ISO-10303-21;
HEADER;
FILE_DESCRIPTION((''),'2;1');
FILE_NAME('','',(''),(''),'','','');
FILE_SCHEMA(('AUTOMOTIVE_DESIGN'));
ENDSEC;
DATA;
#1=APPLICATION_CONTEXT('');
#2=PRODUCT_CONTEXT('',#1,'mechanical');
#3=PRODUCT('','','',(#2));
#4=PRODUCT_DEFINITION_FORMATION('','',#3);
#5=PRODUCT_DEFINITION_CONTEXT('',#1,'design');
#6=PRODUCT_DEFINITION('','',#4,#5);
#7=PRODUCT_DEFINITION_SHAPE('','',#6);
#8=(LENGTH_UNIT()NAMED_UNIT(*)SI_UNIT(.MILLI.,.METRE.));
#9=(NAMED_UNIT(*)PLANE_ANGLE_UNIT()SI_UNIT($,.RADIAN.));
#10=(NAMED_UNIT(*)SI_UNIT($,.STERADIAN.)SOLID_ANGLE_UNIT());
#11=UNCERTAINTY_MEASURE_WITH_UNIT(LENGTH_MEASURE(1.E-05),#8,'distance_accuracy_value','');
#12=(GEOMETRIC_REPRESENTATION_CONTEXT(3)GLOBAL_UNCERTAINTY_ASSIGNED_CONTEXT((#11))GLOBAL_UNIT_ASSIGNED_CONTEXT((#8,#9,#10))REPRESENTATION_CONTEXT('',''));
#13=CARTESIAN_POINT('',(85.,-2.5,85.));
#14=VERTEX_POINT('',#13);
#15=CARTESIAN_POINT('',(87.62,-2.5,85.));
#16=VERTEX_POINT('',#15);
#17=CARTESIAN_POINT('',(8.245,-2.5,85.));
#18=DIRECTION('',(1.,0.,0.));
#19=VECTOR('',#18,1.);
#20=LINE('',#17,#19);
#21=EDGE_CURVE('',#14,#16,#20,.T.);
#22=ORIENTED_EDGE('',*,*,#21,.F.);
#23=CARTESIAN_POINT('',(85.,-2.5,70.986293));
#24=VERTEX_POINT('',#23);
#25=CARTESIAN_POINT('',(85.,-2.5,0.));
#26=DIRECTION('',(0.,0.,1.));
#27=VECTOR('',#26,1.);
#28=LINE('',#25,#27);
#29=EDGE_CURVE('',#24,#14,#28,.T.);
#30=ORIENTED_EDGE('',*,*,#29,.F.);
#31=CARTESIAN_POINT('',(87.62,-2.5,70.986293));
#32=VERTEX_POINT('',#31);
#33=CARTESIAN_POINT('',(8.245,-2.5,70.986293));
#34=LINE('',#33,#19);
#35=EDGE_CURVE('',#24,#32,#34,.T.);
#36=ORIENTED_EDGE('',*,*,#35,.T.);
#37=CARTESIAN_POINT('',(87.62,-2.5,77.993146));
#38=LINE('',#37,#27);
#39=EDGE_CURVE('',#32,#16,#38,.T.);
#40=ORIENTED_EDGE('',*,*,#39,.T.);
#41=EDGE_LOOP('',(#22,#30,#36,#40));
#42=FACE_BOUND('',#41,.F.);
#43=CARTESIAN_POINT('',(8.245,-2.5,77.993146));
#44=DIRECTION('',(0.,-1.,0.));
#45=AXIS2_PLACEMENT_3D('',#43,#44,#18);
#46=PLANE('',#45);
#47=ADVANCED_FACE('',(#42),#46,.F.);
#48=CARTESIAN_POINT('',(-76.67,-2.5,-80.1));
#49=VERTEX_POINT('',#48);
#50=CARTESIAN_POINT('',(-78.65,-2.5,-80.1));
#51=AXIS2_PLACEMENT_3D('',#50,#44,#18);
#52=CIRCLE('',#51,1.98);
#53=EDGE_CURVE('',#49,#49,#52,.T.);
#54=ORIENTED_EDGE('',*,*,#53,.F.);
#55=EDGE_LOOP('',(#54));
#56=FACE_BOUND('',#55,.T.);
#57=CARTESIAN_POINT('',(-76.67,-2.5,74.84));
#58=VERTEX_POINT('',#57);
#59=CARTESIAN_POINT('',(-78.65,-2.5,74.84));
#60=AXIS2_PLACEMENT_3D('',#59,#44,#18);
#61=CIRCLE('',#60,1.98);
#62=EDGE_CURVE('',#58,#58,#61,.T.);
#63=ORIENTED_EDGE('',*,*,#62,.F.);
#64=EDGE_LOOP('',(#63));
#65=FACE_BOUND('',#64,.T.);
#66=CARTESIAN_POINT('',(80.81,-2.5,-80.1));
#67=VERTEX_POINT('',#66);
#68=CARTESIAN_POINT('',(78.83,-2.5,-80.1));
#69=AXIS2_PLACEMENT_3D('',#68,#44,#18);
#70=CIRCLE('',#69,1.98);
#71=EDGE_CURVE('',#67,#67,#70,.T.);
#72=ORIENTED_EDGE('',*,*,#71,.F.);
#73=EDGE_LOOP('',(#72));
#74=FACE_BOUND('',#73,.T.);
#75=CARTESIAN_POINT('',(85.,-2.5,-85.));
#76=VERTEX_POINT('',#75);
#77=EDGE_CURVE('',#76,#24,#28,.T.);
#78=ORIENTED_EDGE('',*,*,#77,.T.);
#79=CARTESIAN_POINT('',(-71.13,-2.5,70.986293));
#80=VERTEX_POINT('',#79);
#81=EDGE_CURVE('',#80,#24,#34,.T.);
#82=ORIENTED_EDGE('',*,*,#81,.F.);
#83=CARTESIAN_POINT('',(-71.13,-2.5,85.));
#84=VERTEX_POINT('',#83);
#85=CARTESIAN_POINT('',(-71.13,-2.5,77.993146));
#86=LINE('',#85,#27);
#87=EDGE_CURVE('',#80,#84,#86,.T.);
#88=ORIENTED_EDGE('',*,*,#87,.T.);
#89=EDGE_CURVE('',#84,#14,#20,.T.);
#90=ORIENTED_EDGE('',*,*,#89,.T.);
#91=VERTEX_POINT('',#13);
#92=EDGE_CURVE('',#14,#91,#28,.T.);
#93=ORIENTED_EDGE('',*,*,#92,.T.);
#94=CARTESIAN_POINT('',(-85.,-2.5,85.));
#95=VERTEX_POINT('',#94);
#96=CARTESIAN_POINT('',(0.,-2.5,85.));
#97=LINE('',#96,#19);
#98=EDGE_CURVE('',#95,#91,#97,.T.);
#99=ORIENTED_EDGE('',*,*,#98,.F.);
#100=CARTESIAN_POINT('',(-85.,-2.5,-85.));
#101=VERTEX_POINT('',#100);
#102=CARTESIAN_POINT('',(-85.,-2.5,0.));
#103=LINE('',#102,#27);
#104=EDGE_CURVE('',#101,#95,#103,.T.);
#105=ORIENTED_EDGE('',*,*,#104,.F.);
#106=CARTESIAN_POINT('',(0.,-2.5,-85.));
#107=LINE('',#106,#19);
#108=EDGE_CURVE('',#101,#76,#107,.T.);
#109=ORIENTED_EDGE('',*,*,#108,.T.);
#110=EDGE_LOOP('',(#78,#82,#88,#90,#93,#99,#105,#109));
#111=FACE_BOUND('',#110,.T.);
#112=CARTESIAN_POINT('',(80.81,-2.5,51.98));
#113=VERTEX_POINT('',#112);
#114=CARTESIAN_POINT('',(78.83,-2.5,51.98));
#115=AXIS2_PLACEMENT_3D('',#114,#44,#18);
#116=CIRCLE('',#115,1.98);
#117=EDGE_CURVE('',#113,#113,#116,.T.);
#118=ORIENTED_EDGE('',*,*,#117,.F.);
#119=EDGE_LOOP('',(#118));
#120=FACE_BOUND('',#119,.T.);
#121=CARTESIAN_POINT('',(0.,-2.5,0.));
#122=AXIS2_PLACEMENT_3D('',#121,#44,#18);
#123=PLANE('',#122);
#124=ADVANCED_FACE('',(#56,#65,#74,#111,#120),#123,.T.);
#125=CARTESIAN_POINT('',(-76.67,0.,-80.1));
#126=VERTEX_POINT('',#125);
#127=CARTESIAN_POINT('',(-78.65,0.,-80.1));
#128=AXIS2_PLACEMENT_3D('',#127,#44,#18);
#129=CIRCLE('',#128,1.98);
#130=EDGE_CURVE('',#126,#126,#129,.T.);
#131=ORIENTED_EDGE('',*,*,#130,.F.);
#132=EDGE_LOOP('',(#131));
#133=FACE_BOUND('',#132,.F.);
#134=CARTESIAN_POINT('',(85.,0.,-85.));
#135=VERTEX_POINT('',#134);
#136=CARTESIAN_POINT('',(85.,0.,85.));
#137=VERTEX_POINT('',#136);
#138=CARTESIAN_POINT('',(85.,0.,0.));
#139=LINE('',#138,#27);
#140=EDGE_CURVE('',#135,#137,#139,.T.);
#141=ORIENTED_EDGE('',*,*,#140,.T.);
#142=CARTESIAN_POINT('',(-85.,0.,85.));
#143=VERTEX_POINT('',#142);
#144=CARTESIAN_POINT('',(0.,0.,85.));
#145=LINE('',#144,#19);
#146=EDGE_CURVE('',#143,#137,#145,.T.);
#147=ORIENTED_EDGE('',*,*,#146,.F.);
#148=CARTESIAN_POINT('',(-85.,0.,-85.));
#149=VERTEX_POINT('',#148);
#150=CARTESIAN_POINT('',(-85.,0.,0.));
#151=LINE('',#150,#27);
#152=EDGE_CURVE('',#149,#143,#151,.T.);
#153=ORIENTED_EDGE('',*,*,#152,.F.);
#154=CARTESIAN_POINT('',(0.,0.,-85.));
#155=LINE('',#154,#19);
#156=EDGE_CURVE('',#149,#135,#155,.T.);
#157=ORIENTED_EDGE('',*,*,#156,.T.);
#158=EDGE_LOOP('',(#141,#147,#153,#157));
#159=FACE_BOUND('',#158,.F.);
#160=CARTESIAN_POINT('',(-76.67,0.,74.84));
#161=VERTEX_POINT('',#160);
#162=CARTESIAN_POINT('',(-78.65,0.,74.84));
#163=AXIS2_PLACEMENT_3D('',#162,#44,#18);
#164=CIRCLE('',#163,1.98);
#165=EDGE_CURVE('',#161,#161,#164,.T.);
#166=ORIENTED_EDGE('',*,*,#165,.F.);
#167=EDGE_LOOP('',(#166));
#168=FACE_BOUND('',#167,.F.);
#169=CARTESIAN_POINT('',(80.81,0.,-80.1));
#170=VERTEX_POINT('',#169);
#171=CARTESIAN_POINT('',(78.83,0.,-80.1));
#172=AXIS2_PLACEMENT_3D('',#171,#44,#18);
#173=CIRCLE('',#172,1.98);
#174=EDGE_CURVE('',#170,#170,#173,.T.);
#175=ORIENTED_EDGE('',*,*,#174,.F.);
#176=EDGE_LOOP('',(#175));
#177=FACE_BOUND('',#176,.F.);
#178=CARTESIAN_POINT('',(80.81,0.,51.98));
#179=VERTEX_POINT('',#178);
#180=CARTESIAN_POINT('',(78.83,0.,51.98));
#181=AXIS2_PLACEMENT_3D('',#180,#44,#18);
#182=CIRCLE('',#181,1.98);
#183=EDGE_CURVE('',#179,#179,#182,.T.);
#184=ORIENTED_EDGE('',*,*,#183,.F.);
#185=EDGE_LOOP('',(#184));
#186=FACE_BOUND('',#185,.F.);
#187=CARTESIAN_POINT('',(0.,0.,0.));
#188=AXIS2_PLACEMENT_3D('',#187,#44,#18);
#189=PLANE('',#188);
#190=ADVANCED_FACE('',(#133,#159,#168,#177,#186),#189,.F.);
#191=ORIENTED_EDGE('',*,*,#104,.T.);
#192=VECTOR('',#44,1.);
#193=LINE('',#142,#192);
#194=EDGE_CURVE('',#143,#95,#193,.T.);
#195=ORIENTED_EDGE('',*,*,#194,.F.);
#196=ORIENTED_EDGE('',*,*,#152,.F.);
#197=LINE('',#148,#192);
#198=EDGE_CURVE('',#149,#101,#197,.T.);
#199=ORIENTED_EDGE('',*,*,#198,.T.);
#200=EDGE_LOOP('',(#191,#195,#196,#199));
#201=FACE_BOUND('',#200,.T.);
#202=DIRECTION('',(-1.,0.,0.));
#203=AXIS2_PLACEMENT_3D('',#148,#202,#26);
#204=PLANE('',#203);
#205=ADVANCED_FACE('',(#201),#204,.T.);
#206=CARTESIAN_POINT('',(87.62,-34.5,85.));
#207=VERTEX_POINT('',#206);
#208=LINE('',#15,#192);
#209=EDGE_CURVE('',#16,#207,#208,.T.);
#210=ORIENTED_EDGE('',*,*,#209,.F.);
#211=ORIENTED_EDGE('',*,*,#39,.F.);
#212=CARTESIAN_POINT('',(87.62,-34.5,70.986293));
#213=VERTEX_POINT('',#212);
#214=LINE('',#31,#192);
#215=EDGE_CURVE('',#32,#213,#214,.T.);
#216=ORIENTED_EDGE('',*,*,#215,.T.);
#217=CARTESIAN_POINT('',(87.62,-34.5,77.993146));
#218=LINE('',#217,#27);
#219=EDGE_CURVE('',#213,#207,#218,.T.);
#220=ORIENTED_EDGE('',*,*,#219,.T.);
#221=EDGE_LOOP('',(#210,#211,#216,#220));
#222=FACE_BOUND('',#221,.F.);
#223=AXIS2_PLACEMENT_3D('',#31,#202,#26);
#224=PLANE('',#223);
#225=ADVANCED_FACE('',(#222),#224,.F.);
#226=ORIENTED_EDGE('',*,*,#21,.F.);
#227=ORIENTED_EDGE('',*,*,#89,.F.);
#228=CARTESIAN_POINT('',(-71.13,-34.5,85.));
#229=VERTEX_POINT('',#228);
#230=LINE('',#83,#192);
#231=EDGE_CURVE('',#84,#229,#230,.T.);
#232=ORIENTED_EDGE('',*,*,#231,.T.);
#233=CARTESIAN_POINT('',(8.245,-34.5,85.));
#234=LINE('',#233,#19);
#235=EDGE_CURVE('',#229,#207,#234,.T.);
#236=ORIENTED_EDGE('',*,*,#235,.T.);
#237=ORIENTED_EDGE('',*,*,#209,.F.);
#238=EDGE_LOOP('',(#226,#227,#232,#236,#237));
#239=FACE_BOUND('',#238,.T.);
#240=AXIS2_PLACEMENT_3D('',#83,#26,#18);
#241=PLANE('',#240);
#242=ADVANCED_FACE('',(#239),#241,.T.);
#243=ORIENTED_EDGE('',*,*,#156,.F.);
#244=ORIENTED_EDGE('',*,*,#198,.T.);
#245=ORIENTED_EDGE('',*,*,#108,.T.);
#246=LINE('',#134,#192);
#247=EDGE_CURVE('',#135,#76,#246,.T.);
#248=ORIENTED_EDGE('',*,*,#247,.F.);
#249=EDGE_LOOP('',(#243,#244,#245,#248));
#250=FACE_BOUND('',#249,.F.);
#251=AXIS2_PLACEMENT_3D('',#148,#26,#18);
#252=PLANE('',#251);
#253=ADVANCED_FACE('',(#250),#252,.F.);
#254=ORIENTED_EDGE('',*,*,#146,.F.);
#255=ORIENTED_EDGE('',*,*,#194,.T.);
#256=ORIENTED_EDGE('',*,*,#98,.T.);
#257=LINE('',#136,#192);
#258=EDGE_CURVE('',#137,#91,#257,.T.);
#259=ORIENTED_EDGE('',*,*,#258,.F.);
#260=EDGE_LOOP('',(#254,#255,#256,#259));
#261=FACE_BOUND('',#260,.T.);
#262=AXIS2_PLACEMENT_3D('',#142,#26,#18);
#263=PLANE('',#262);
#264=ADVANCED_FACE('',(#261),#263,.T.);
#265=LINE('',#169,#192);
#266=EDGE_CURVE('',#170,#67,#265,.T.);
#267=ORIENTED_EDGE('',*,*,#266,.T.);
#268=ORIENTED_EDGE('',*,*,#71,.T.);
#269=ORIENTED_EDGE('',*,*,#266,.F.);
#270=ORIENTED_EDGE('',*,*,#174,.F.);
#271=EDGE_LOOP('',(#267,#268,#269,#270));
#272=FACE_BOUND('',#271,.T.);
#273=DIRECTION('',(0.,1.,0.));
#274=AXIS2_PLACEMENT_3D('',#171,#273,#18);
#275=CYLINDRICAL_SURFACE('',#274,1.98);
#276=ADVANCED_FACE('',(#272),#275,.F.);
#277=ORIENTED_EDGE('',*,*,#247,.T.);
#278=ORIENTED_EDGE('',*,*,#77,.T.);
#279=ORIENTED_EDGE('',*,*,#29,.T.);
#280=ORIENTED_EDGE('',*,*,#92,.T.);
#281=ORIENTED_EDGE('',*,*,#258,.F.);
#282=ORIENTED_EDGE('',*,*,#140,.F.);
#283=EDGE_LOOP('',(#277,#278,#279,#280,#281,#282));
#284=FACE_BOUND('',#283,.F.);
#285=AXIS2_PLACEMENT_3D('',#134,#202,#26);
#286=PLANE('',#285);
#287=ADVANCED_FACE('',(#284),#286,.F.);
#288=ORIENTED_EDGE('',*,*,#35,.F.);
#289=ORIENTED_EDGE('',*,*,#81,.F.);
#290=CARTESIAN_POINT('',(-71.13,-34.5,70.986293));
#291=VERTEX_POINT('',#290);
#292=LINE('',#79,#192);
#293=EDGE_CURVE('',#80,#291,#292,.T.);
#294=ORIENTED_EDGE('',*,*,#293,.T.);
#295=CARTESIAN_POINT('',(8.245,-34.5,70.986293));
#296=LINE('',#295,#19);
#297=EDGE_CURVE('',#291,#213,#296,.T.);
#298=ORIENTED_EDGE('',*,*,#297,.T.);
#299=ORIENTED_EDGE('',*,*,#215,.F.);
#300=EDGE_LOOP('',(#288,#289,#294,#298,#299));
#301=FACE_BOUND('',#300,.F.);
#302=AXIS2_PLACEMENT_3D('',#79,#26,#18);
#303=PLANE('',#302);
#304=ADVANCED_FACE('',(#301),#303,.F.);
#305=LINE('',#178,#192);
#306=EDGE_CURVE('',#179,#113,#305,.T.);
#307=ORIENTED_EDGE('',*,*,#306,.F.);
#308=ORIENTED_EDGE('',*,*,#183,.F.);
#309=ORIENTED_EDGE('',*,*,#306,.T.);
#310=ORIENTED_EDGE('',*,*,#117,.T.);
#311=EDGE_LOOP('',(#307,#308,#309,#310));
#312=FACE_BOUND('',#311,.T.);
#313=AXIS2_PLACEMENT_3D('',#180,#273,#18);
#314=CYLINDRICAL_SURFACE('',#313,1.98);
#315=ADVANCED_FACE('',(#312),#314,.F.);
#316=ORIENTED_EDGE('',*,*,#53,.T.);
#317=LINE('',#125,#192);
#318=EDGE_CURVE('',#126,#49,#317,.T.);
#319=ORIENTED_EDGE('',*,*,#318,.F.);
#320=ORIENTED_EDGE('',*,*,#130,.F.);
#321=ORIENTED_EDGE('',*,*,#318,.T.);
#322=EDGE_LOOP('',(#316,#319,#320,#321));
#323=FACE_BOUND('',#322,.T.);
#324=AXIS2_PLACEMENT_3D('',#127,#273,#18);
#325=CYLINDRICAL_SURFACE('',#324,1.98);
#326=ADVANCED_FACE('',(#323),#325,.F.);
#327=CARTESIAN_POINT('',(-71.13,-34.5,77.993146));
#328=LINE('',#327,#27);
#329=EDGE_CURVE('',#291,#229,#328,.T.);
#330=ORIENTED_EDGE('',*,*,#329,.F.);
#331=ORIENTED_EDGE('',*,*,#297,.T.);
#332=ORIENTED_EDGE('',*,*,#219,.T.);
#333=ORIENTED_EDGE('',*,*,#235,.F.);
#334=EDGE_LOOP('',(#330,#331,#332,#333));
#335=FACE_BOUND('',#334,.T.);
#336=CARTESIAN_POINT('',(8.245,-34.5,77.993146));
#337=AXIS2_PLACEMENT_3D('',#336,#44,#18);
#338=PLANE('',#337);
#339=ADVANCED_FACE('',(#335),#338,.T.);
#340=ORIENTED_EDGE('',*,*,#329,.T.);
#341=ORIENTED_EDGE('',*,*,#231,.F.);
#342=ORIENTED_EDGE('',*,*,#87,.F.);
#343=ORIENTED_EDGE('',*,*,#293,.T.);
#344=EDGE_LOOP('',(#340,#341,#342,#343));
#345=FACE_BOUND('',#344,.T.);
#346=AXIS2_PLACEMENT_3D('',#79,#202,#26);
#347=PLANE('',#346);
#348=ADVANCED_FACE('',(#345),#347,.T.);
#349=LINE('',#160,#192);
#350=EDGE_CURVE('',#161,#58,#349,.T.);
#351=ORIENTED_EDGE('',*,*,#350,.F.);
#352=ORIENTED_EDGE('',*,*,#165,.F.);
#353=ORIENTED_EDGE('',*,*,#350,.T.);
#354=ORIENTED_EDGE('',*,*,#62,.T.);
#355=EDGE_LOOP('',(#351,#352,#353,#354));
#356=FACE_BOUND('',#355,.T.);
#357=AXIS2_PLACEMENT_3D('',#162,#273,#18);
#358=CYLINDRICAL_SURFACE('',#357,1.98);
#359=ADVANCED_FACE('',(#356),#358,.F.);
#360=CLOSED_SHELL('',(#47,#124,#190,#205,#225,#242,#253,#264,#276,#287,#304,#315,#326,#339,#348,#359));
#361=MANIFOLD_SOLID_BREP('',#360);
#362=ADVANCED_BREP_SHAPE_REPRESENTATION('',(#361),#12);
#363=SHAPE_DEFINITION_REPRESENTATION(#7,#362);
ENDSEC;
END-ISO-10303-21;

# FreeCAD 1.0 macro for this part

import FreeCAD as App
import Part
import Sketcher
from FreeCAD import Vector
Q = App.Units.Quantity

doc = App.newDocument("Part")
body = doc.addObject("PartDesign::Body", "Body")

sketch1 = body.newObject("Sketcher::SketchObject", "Sketch")
sketch1.AttachmentSupport = (doc.getObject("XZ_Plane"), [""])
sketch1.MapMode = "FlatFace"
sketch1.addGeometry([
    Part.LineSegment(Vector(-85, 85, 0), Vector(-85, -85, 0)),
    Part.LineSegment(Vector(-85, -85, 0), Vector(85, -85, 0)),
    Part.LineSegment(Vector(85, -85, 0), Vector(85, 85, 0)),
    Part.LineSegment(Vector(85, 85, 0), Vector(-85, 85, 0)),
    Part.Circle(Vector(-78.7, -80.1, 0), Vector(0, 0, 1), 2),
    Part.Circle(Vector(78.8, -80.1, 0), Vector(0, 0, 1), 2),
    Part.Circle(Vector(-78.7, 74.8, 0), Vector(0, 0, 1), 2),
    Part.Circle(Vector(78.8, 52, 0), Vector(0, 0, 1), 2),
], False)
sketch1.addConstraint([
    Sketcher.Constraint("Coincident", 0, 2, 1, 1),
    Sketcher.Constraint("Coincident", 1, 2, 2, 1),
    Sketcher.Constraint("Coincident", 2, 2, 3, 1),
    Sketcher.Constraint("Coincident", 3, 2, 0, 1),
    Sketcher.Constraint("Vertical", 0),
    Sketcher.Constraint("Horizontal", 1),
    Sketcher.Constraint("Vertical", 2),
    Sketcher.Constraint("Horizontal", 3),
    Sketcher.Constraint("Equal", 4, 5),
    Sketcher.Constraint("Equal", 5, 6),
    Sketcher.Constraint("Equal", 6, 7),
    Sketcher.Constraint("Symmetric", 0, 2, 2, 2, -1, 1),
    Sketcher.Constraint("Horizontal", 4, 3, 5, 3),
    Sketcher.Constraint("Vertical", 4, 3, 6, 3),
    Sketcher.Constraint("Vertical", 5, 3, 7, 3),
    Sketcher.Constraint("Equal", 3, 0),
    Sketcher.Constraint("Diameter", 4, Q("3.96 mm")),
    Sketcher.Constraint("DistanceX", 1, 1, 1, 2, Q("170 mm")),
    Sketcher.Constraint("DistanceY", 4, 3, -1, 1, Q("80.1 mm")),
    Sketcher.Constraint("DistanceX", 4, 3, -1, 1, Q("78.65 mm")),
    Sketcher.Constraint("DistanceX", -1, 1, 5, 3, Q("78.83 mm")),
    Sketcher.Constraint("DistanceY", -1, 1, 6, 3, Q("74.84 mm")),
    Sketcher.Constraint("DistanceY", -1, 1, 7, 3, Q("51.98 mm")),
])
pad1 = body.newObject("PartDesign::Pad", "Pad")
pad1.Profile = sketch1
pad1.Length = 2.5

sketch2 = body.newObject("Sketcher::SketchObject", "Sketch001")
sketch2.AttachmentSupport = (doc.getObject("XZ_Plane"), [""])
sketch2.MapMode = "FlatFace"
sketch2.AttachmentOffset = App.Placement(Vector(0, 0, 2.5), App.Rotation())
sketch2.addGeometry([
    Part.LineSegment(Vector(-71, 85, 0), Vector(-71, 71, 0)),
    Part.LineSegment(Vector(-71, 71, 0), Vector(88, 71, 0)),
    Part.LineSegment(Vector(88, 71, 0), Vector(88, 85, 0)),
    Part.LineSegment(Vector(88, 85, 0), Vector(-71, 85, 0)),
], False)
sketch2.addConstraint([
    Sketcher.Constraint("Coincident", 0, 2, 1, 1),
    Sketcher.Constraint("Coincident", 1, 2, 2, 1),
    Sketcher.Constraint("Coincident", 2, 2, 3, 1),
    Sketcher.Constraint("Coincident", 3, 2, 0, 1),
    Sketcher.Constraint("Vertical", 0),
    Sketcher.Constraint("Horizontal", 1),
    Sketcher.Constraint("Vertical", 2),
    Sketcher.Constraint("Horizontal", 3),
    Sketcher.Constraint("DistanceY", -1, 1, 2, 2, Q("85 mm")),
    Sketcher.Constraint("DistanceX", 1, 1, 1, 2, Q("158.75 mm")),
    Sketcher.Constraint("DistanceX", 0, 2, -1, 1, Q("71.13 mm")),
    Sketcher.Constraint("DistanceY", 0, 2, 0, 1, Q("14.013707 mm")),
])
pad2 = body.newObject("PartDesign::Pad", "Pad001")
pad2.Profile = sketch2
pad2.Length = 32

doc.recompute()
